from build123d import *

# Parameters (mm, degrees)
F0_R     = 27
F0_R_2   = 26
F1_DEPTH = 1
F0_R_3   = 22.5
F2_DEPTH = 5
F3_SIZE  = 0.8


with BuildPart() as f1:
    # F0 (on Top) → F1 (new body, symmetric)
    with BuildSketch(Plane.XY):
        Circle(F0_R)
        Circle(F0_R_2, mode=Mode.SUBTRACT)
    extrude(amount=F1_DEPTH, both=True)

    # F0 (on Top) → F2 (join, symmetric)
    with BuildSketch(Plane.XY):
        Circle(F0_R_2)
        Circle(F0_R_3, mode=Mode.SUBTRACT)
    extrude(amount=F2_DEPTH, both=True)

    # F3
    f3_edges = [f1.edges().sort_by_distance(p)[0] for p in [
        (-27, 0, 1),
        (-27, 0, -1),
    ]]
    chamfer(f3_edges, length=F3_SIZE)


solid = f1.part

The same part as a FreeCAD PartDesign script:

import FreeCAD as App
import Part
import Sketcher

V = App.Vector


def edges_at(feature, points):
    """Names of the edges that pass closest to the given points."""
    edges = feature.Shape.Edges
    near = lambda p: min(range(len(edges)), key=lambda i: edges[i].distToShape(Part.Vertex(*p))[0])
    return sorted({f"Edge{near(p) + 1}" for p in points})

doc = App.newDocument("Part")
body = doc.addObject("PartDesign::Body", "Body")

# Sketch on XY plane
sketch1 = body.newObject("Sketcher::SketchObject", "Sketch")
sketch1.AttachmentSupport = (doc.getObject("XY_Plane"), [""])
sketch1.MapMode = "FlatFace"
sketch1.addGeometry([
    Part.Circle(V(0, 0, 0), V(0, 0, 1), 27),
    Part.Circle(V(0, 0, 0), V(0, 0, 1), 26),
], False)
sketch1.addConstraint([
    Sketcher.Constraint("Coincident", 0, 3, -1, 1),
    Sketcher.Constraint("Coincident", 1, 3, -1, 1),
    Sketcher.Constraint("Diameter", 0, 54.0),
    Sketcher.Constraint("Diameter", 1, 52.0),
])
pad1 = body.newObject("PartDesign::Pad", "Pad")
pad1.Profile = sketch1
pad1.Length = 2
pad1.Midplane = True

# Sketch on XY plane
sketch2 = body.newObject("Sketcher::SketchObject", "Sketch001")
sketch2.AttachmentSupport = (doc.getObject("XY_Plane"), [""])
sketch2.MapMode = "FlatFace"
sketch2.addGeometry([
    Part.Circle(V(0, 0, 0), V(0, 0, 1), 26),
    Part.Circle(V(0, 0, 0), V(0, 0, 1), 22),
], False)
sketch2.addConstraint([
    Sketcher.Constraint("Coincident", 0, 3, -1, 1),
    Sketcher.Constraint("Coincident", 1, 3, -1, 1),
    Sketcher.Constraint("Diameter", 0, 52.0),
    Sketcher.Constraint("Diameter", 1, 45.0),
])
pad2 = body.newObject("PartDesign::Pad", "Pad001")
pad2.Profile = sketch2
pad2.Length = 10
pad2.Midplane = True
doc.recompute()

chamfer = body.newObject("PartDesign::Chamfer", "Chamfer")
chamfer.Base = (pad2, edges_at(pad2, [(-27, 0, 1), (-27, 0, -1)]))
chamfer.Size = 0.8

doc.recompute()
